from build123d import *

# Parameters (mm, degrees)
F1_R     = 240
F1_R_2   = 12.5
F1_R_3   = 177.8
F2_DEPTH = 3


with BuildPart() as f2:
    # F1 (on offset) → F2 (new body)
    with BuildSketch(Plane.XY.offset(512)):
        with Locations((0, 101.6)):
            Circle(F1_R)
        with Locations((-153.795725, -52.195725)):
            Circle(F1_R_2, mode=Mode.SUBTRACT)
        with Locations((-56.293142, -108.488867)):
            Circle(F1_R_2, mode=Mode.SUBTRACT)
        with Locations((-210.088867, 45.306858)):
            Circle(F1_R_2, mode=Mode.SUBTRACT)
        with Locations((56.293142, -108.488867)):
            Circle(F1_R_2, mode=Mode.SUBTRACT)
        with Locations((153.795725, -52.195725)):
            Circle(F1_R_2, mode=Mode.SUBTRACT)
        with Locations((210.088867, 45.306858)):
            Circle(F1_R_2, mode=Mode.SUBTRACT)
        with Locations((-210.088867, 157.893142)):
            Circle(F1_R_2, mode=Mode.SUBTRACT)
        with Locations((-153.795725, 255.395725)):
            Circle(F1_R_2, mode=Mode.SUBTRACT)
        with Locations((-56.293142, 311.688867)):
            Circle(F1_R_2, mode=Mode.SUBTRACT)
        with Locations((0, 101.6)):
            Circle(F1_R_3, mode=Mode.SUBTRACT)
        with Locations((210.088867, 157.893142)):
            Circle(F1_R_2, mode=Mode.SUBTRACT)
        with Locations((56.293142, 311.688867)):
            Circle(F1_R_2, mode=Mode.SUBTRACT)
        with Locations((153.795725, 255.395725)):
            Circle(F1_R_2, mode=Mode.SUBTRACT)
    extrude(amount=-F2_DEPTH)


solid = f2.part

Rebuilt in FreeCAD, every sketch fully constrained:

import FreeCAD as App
import Part
import Sketcher

V = App.Vector
Q = App.Units.Quantity

doc = App.newDocument("Part")
body = doc.addObject("PartDesign::Body", "Body")

sketch1 = body.newObject("Sketcher::SketchObject", "Sketch")
sketch1.AttachmentSupport = (doc.getObject("XY_Plane"), [""])
sketch1.MapMode = "FlatFace"
sketch1.AttachmentOffset = App.Placement(V(0, 0, 512), App.Rotation())
sketch1.addGeometry([
    Part.Circle(V(0, 102, 0), V(0, 0, 1), 240),
    Part.Circle(V(-154, -52, 0), V(0, 0, 1), 12),
    Part.Circle(V(-56, -108, 0), V(0, 0, 1), 12),
    Part.Circle(V(-210, 45, 0), V(0, 0, 1), 12),
    Part.Circle(V(56, -108, 0), V(0, 0, 1), 12),
    Part.Circle(V(154, -52, 0), V(0, 0, 1), 12),
    Part.Circle(V(210, 45, 0), V(0, 0, 1), 12),
    Part.Circle(V(-210, 158, 0), V(0, 0, 1), 12),
    Part.Circle(V(-154, 255, 0), V(0, 0, 1), 12),
    Part.Circle(V(-56, 312, 0), V(0, 0, 1), 12),
    Part.Circle(V(0, 102, 0), V(0, 0, 1), 178),
    Part.Circle(V(210, 158, 0), V(0, 0, 1), 12),
    Part.Circle(V(56, 312, 0), V(0, 0, 1), 12),
    Part.Circle(V(154, 255, 0), V(0, 0, 1), 12),
], False)
sketch1.addConstraint([
    Sketcher.Constraint("Coincident", 10, 3, 0, 3),
    Sketcher.Constraint("Equal", 1, 2),
    Sketcher.Constraint("Equal", 2, 3),
    Sketcher.Constraint("Equal", 3, 4),
    Sketcher.Constraint("Equal", 4, 5),
    Sketcher.Constraint("Equal", 5, 6),
    Sketcher.Constraint("Equal", 6, 7),
    Sketcher.Constraint("Equal", 7, 8),
    Sketcher.Constraint("Equal", 8, 9),
    Sketcher.Constraint("Equal", 9, 11),
    Sketcher.Constraint("Equal", 11, 12),
    Sketcher.Constraint("Equal", 12, 13),
    Sketcher.Constraint("Symmetric", 2, 3, 4, 3, -2),
    Sketcher.Constraint("Symmetric", 1, 3, 5, 3, -2),
    Sketcher.Constraint("Symmetric", 3, 3, 6, 3, -2),
    Sketcher.Constraint("Symmetric", 7, 3, 11, 3, -2),
    Sketcher.Constraint("Symmetric", 9, 3, 12, 3, -2),
    Sketcher.Constraint("Symmetric", 8, 3, 13, 3, -2),
    Sketcher.Constraint("PointOnObject", 0, 3, -2),
    Sketcher.Constraint("Vertical", 3, 3, 7, 3),
    Sketcher.Constraint("Vertical", 1, 3, 8, 3),
    Sketcher.Constraint("Vertical", 2, 3, 9, 3),
    Sketcher.Constraint("Diameter", 0, Q("480 mm")),
    Sketcher.Constraint("Diameter", 1, Q("25 mm")),
    Sketcher.Constraint("Diameter", 10, Q("355.6 mm")),
    Sketcher.Constraint("DistanceY", -1, 1, 0, 3, Q("101.6 mm")),
    Sketcher.Constraint("DistanceY", 2, 3, 1, 3, Q("56.293142 mm")),
    Sketcher.Constraint("DistanceX", 3, 3, 1, 3, Q("56.293142 mm")),
    Sketcher.Constraint("DistanceY", 3, 3, 0, 3, Q("56.293142 mm")),
    Sketcher.Constraint("DistanceX", 3, 3, 4, 3, Q("266.382009 mm")),
    Sketcher.Constraint("DistanceX", 1, 3, 5, 3, Q("307.59145 mm")),
    Sketcher.Constraint("DistanceY", 2, 3, 7, 3, Q("266.382009 mm")),
    Sketcher.Constraint("DistanceY", 1, 3, 8, 3, Q("307.59145 mm")),
    Sketcher.Constraint("DistanceY", 3, 3, 9, 3, Q("266.382009 mm")),
    Sketcher.Constraint("DistanceY", 1, 3, -1, 1, Q("52.195725 mm")),
])
pad1 = body.newObject("PartDesign::Pad", "Pad")
pad1.Profile = sketch1
pad1.Length = 3
pad1.Reversed = True

doc.recompute()
